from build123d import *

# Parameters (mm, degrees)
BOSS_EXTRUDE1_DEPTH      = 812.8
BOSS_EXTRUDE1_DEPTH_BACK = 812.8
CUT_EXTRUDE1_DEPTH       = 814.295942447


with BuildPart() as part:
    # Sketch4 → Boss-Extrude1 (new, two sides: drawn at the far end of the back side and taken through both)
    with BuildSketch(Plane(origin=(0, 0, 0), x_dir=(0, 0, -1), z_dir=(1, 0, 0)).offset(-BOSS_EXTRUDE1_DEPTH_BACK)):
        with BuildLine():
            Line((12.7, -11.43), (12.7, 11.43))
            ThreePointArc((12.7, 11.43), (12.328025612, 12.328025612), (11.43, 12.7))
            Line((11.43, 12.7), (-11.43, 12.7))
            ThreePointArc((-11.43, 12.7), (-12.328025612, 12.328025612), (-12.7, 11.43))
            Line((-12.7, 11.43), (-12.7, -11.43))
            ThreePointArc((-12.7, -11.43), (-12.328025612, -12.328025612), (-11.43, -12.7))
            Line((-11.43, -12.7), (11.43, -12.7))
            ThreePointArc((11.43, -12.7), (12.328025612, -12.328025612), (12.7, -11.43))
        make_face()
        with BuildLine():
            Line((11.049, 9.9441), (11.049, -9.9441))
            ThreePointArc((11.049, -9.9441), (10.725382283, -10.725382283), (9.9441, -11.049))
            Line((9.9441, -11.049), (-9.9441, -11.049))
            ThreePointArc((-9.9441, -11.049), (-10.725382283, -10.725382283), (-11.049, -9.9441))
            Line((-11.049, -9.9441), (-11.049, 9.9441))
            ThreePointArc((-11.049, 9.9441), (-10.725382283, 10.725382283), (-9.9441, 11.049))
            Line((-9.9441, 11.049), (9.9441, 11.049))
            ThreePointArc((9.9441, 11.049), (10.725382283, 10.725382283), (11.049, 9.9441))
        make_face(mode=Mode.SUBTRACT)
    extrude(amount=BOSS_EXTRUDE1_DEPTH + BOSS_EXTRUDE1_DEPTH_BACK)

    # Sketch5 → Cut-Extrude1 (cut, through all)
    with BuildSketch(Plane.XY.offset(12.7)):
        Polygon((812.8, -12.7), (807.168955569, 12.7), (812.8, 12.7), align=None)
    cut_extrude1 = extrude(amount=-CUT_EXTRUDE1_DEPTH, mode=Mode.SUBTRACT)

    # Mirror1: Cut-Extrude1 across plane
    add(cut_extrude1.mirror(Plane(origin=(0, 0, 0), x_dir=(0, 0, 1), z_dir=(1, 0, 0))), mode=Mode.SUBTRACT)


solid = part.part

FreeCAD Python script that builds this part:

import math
import FreeCAD as App
import Part
import Sketcher
Q = App.Units.Quantity


def add_polygon(sketch, points):
    """Adds a closed chain of lines whose ends are joined by coincident constraints."""
    first, n = sketch.GeometryCount, len(points)
    for a, b in zip(points, points[1:] + points[:1]):
        sketch.addGeometry(Part.LineSegment(App.Vector(*a, 0), App.Vector(*b, 0)), False)
    for i in range(n):
        sketch.addConstraint(Sketcher.Constraint("Coincident", first + i, 2, first + (i + 1) % n, 1))

doc = App.newDocument("Part")
body = doc.addObject("PartDesign::Body", "Body")

# Sketch on YZ plane
sketch1 = body.newObject("Sketcher::SketchObject", "Sketch")
sketch1.AttachmentSupport = (doc.getObject("YZ_Plane"), [""])
sketch1.MapMode = "FlatFace"
sketch1.addGeometry(Part.LineSegment(App.Vector(-11.43, -12.7, 0), App.Vector(11.43, -12.7, 0)), False)
sketch1.addGeometry(Part.ArcOfCircle(Part.Circle(App.Vector(11.43, -11.43, 0), App.Vector(0, 0, 1), 1.27), math.radians(-90), math.radians(0)), False)
sketch1.addGeometry(Part.LineSegment(App.Vector(12.7, -11.43, 0), App.Vector(12.7, 11.43, 0)), False)
sketch1.addGeometry(Part.ArcOfCircle(Part.Circle(App.Vector(11.43, 11.43, 0), App.Vector(0, 0, 1), 1.27), math.radians(0), math.radians(90)), False)
sketch1.addGeometry(Part.LineSegment(App.Vector(11.43, 12.7, 0), App.Vector(-11.43, 12.7, 0)), False)
sketch1.addGeometry(Part.ArcOfCircle(Part.Circle(App.Vector(-11.43, 11.43, 0), App.Vector(0, 0, 1), 1.27), math.radians(90), math.radians(180)), False)
sketch1.addGeometry(Part.LineSegment(App.Vector(-12.7, 11.43, 0), App.Vector(-12.7, -11.43, 0)), False)
sketch1.addGeometry(Part.ArcOfCircle(Part.Circle(App.Vector(-11.43, -11.43, 0), App.Vector(0, 0, 1), 1.27), math.radians(180), math.radians(270)), False)
sketch1.addGeometry(Part.ArcOfCircle(Part.Circle(App.Vector(9.9441, -9.9441, 0), App.Vector(0, 0, 1), 1.1049), math.radians(-90), math.radians(0)), False)
sketch1.addGeometry(Part.LineSegment(App.Vector(9.9441, -11.049, 0), App.Vector(-9.9441, -11.049, 0)), False)
sketch1.addGeometry(Part.ArcOfCircle(Part.Circle(App.Vector(-9.9441, -9.9441, 0), App.Vector(0, 0, 1), 1.1049), math.radians(180), math.radians(270)), False)
sketch1.addGeometry(Part.LineSegment(App.Vector(-11.049, -9.9441, 0), App.Vector(-11.049, 9.9441, 0)), False)
sketch1.addGeometry(Part.ArcOfCircle(Part.Circle(App.Vector(-9.9441, 9.9441, 0), App.Vector(0, 0, 1), 1.1049), math.radians(90), math.radians(180)), False)
sketch1.addGeometry(Part.LineSegment(App.Vector(-9.9441, 11.049, 0), App.Vector(9.9441, 11.049, 0)), False)
sketch1.addGeometry(Part.ArcOfCircle(Part.Circle(App.Vector(9.9441, 9.9441, 0), App.Vector(0, 0, 1), 1.1049), math.radians(0), math.radians(90)), False)
sketch1.addGeometry(Part.LineSegment(App.Vector(11.049, 9.9441, 0), App.Vector(11.049, -9.9441, 0)), False)
sketch1.addConstraint(Sketcher.Constraint("Tangent", 0, 2, 1, 1))
sketch1.addConstraint(Sketcher.Constraint("Tangent", 1, 2, 2, 1))
sketch1.addConstraint(Sketcher.Constraint("Tangent", 2, 2, 3, 1))
sketch1.addConstraint(Sketcher.Constraint("Tangent", 3, 2, 4, 1))
sketch1.addConstraint(Sketcher.Constraint("Tangent", 4, 2, 5, 1))
sketch1.addConstraint(Sketcher.Constraint("Tangent", 5, 2, 6, 1))
sketch1.addConstraint(Sketcher.Constraint("Tangent", 6, 2, 7, 1))
sketch1.addConstraint(Sketcher.Constraint("Tangent", 7, 2, 0, 1))
sketch1.addConstraint(Sketcher.Constraint("Tangent", 8, 1, 9, 1))
sketch1.addConstraint(Sketcher.Constraint("Tangent", 9, 2, 10, 2))
sketch1.addConstraint(Sketcher.Constraint("Tangent", 10, 1, 11, 1))
sketch1.addConstraint(Sketcher.Constraint("Tangent", 11, 2, 12, 2))
sketch1.addConstraint(Sketcher.Constraint("Tangent", 12, 1, 13, 1))
sketch1.addConstraint(Sketcher.Constraint("Tangent", 13, 2, 14, 2))
sketch1.addConstraint(Sketcher.Constraint("Tangent", 14, 1, 15, 1))
sketch1.addConstraint(Sketcher.Constraint("Tangent", 15, 2, 8, 2))
sketch1.addConstraint(Sketcher.Constraint("Horizontal", 0))
sketch1.addConstraint(Sketcher.Constraint("Vertical", 2))
sketch1.addConstraint(Sketcher.Constraint("Horizontal", 4))
sketch1.addConstraint(Sketcher.Constraint("Vertical", 6))
sketch1.addConstraint(Sketcher.Constraint("Horizontal", 9))
sketch1.addConstraint(Sketcher.Constraint("Vertical", 11))
sketch1.addConstraint(Sketcher.Constraint("Horizontal", 13))
sketch1.addConstraint(Sketcher.Constraint("Vertical", 15))
sketch1.addConstraint(Sketcher.Constraint("Equal", 1, 3))
sketch1.addConstraint(Sketcher.Constraint("Equal", 3, 5))
sketch1.addConstraint(Sketcher.Constraint("Equal", 5, 7))
sketch1.addConstraint(Sketcher.Constraint("Equal", 8, 10))
sketch1.addConstraint(Sketcher.Constraint("Equal", 10, 12))
sketch1.addConstraint(Sketcher.Constraint("Equal", 12, 14))
sketch1.addConstraint(Sketcher.Constraint("Symmetric", 1, 3, 5, 3, -1, 1))
sketch1.addConstraint(Sketcher.Constraint("Symmetric", 8, 3, 12, 3, -1, 1))
sketch1.addConstraint(Sketcher.Constraint("Equal", 4, 2))
sketch1.addConstraint(Sketcher.Constraint("Equal", 13, 11))
sketch1.addConstraint(Sketcher.Constraint("Radius", 1, Q("0.05 in")))
sketch1.addConstraint(Sketcher.Constraint("DistanceX", 0, 1, 0, 2, Q("0.9 in")))
sketch1.addConstraint(Sketcher.Constraint("Radius", 8, Q("0.0435 in")))
sketch1.addConstraint(Sketcher.Constraint("DistanceX", 9, 2, 9, 1, Q("0.783 in")))
pad1 = body.newObject("PartDesign::Pad", "Pad")
pad1.Profile = sketch1
pad1.Type = "TwoLengths"
pad1.Length = Q("32 in")
pad1.Length2 = Q("32 in")

# Sketch on XY plane
sketch2 = body.newObject("Sketcher::SketchObject", "Sketch001")
sketch2.AttachmentSupport = (doc.getObject("XY_Plane"), [""])
sketch2.MapMode = "FlatFace"
sketch2.AttachmentOffset = App.Placement(App.Vector(0, 0, 0.5 * 25.4), App.Rotation())
add_polygon(sketch2, [(807.168956, 12.7), (812.8, -12.7), (812.8, 12.7)])  # lines 0-2
sketch2.addConstraint(Sketcher.Constraint("Vertical", 1))
sketch2.addConstraint(Sketcher.Constraint("Horizontal", 2))
sketch2.addConstraint(Sketcher.Constraint("DistanceY", 1, 1, 1, 2, Q("1 in")))
sketch2.addConstraint(Sketcher.Constraint("DistanceX", -1, 1, 0, 2, Q("32 in")))
sketch2.addConstraint(Sketcher.Constraint("DistanceY", 0, 2, -1, 1, Q("0.5 in")))
sketch2.addConstraint(Sketcher.Constraint("Angle", 0, Q("-77.5 deg")))
pocket1 = body.newObject("PartDesign::Pocket", "Pocket")
pocket1.Profile = sketch2
pocket1.Type = "ThroughAll"
doc.recompute()

mirrored = body.newObject("PartDesign::Mirrored", "Mirrored")
mirrored.Originals = [pocket1]
mirrored.MirrorPlane = (doc.getObject("YZ_Plane"), [""])
body.Tip = mirrored

doc.recompute()
